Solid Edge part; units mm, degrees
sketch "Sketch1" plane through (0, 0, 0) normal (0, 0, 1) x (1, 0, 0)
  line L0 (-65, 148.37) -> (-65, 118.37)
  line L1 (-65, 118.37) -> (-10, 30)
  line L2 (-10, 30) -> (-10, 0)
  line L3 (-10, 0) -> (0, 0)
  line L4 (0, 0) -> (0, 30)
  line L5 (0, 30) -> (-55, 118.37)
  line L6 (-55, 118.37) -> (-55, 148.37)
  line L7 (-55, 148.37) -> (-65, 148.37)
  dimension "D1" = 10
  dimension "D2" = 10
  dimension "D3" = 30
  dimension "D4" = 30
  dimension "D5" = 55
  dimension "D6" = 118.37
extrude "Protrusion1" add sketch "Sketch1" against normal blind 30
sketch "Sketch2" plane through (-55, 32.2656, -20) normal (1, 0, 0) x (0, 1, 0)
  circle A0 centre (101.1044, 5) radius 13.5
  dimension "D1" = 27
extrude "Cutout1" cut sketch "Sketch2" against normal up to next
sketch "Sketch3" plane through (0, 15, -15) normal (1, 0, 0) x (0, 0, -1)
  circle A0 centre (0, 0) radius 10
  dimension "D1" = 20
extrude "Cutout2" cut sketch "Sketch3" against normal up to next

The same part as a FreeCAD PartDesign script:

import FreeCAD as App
import Part
import Sketcher
Q = App.Units.Quantity

doc = App.newDocument("Part")
body = doc.addObject("PartDesign::Body", "Body")

sketch1 = body.newObject("Sketcher::SketchObject", "Sketch")
sketch1.AttachmentSupport = (doc.getObject("XY_Plane"), [""])
sketch1.MapMode = "FlatFace"
sketch1.addGeometry(Part.LineSegment(App.Vector(-55, 148, 0), App.Vector(-65, 148, 0)), False)
sketch1.addGeometry(Part.LineSegment(App.Vector(-65, 148, 0), App.Vector(-65, 118, 0)), False)
sketch1.addGeometry(Part.LineSegment(App.Vector(-65, 118, 0), App.Vector(-10, 30, 0)), False)
sketch1.addGeometry(Part.LineSegment(App.Vector(-10, 30, 0), App.Vector(-10, 0, 0)), False)
sketch1.addGeometry(Part.LineSegment(App.Vector(-10, 0, 0), App.Vector(0, 0, 0)), False)
sketch1.addGeometry(Part.LineSegment(App.Vector(0, 0, 0), App.Vector(0, 30, 0)), False)
sketch1.addGeometry(Part.LineSegment(App.Vector(0, 30, 0), App.Vector(-55, 118, 0)), False)
sketch1.addGeometry(Part.LineSegment(App.Vector(-55, 118, 0), App.Vector(-55, 148, 0)), False)
sketch1.addConstraint(Sketcher.Constraint("Coincident", 0, 2, 1, 1))
sketch1.addConstraint(Sketcher.Constraint("Coincident", 1, 2, 2, 1))
sketch1.addConstraint(Sketcher.Constraint("Coincident", 2, 2, 3, 1))
sketch1.addConstraint(Sketcher.Constraint("Coincident", 3, 2, 4, 1))
sketch1.addConstraint(Sketcher.Constraint("Coincident", 4, 2, 5, 1))
sketch1.addConstraint(Sketcher.Constraint("Coincident", 5, 2, 6, 1))
sketch1.addConstraint(Sketcher.Constraint("Coincident", 6, 2, 7, 1))
sketch1.addConstraint(Sketcher.Constraint("Coincident", 7, 2, 0, 1))
sketch1.addConstraint(Sketcher.Constraint("Horizontal", 0))
sketch1.addConstraint(Sketcher.Constraint("Vertical", 1))
sketch1.addConstraint(Sketcher.Constraint("Vertical", 3))
sketch1.addConstraint(Sketcher.Constraint("Horizontal", 4))
sketch1.addConstraint(Sketcher.Constraint("Vertical", 5))
sketch1.addConstraint(Sketcher.Constraint("Vertical", 7))
sketch1.addConstraint(Sketcher.Constraint("Coincident", 4, 2, -1, 1))
sketch1.addConstraint(Sketcher.Constraint("Parallel", 2, 6))
sketch1.addConstraint(Sketcher.Constraint("Horizontal", 2, 2, 5, 2))
sketch1.addConstraint(Sketcher.Constraint("Horizontal", 1, 2, 6, 2))
sketch1.addConstraint(Sketcher.Constraint("Equal", 1, 3))
sketch1.addConstraint(Sketcher.Constraint("DistanceX", 0, 2, 0, 1, Q("0.3937 in")))
sketch1.addConstraint(Sketcher.Constraint("DistanceX", 6, 2, -1, 1, Q("55 mm")))
sketch1.addConstraint(Sketcher.Constraint("DistanceY", 1, 2, 1, 1, Q("1.1811 in")))
sketch1.addConstraint(Sketcher.Constraint("Distance", 2, Q("104.0877 mm")))
pad1 = body.newObject("PartDesign::Pad", "Pad")
pad1.Profile = sketch1
pad1.Length = Q("1.1811024 in")
pad1.Reversed = True

sketch2 = body.newObject("Sketcher::SketchObject", "Sketch001")
sketch2.AttachmentSupport = (doc.getObject("YZ_Plane"), [""])
sketch2.MapMode = "FlatFace"
sketch2.AttachmentOffset = App.Placement(App.Vector(0, 0, -55), App.Rotation())
sketch2.addGeometry(Part.Circle(App.Vector(133, -15, 0), App.Vector(0, 0, 1), 14), False)
sketch2.addConstraint(Sketcher.Constraint("Diameter", 0, Q("1.063 in")))
sketch2.addConstraint(Sketcher.Constraint("DistanceX", -1, 1, 0, 3, Q("133.37 mm")))
sketch2.addConstraint(Sketcher.Constraint("DistanceY", 0, 3, -1, 1, Q("15 mm")))
pocket1 = body.newObject("PartDesign::Pocket", "Pocket")
pocket1.Profile = sketch2
pocket1.Type = "UpToFirst"

sketch3 = body.newObject("Sketcher::SketchObject", "Sketch002")
sketch3.AttachmentSupport = (doc.getObject("YZ_Plane"), [""])
sketch3.MapMode = "FlatFace"
sketch3.addGeometry(Part.Circle(App.Vector(15, -15, 0), App.Vector(0, 0, 1), 10), False)
sketch3.addConstraint(Sketcher.Constraint("Diameter", 0, Q("0.7874 in")))
sketch3.addConstraint(Sketcher.Constraint("DistanceX", -1, 1, 0, 3, Q("15 mm")))
sketch3.addConstraint(Sketcher.Constraint("DistanceY", 0, 3, -1, 1, Q("15 mm")))
pocket2 = body.newObject("PartDesign::Pocket", "Pocket001")
pocket2.Profile = sketch3
pocket2.Type = "UpToFirst"

doc.recompute()
